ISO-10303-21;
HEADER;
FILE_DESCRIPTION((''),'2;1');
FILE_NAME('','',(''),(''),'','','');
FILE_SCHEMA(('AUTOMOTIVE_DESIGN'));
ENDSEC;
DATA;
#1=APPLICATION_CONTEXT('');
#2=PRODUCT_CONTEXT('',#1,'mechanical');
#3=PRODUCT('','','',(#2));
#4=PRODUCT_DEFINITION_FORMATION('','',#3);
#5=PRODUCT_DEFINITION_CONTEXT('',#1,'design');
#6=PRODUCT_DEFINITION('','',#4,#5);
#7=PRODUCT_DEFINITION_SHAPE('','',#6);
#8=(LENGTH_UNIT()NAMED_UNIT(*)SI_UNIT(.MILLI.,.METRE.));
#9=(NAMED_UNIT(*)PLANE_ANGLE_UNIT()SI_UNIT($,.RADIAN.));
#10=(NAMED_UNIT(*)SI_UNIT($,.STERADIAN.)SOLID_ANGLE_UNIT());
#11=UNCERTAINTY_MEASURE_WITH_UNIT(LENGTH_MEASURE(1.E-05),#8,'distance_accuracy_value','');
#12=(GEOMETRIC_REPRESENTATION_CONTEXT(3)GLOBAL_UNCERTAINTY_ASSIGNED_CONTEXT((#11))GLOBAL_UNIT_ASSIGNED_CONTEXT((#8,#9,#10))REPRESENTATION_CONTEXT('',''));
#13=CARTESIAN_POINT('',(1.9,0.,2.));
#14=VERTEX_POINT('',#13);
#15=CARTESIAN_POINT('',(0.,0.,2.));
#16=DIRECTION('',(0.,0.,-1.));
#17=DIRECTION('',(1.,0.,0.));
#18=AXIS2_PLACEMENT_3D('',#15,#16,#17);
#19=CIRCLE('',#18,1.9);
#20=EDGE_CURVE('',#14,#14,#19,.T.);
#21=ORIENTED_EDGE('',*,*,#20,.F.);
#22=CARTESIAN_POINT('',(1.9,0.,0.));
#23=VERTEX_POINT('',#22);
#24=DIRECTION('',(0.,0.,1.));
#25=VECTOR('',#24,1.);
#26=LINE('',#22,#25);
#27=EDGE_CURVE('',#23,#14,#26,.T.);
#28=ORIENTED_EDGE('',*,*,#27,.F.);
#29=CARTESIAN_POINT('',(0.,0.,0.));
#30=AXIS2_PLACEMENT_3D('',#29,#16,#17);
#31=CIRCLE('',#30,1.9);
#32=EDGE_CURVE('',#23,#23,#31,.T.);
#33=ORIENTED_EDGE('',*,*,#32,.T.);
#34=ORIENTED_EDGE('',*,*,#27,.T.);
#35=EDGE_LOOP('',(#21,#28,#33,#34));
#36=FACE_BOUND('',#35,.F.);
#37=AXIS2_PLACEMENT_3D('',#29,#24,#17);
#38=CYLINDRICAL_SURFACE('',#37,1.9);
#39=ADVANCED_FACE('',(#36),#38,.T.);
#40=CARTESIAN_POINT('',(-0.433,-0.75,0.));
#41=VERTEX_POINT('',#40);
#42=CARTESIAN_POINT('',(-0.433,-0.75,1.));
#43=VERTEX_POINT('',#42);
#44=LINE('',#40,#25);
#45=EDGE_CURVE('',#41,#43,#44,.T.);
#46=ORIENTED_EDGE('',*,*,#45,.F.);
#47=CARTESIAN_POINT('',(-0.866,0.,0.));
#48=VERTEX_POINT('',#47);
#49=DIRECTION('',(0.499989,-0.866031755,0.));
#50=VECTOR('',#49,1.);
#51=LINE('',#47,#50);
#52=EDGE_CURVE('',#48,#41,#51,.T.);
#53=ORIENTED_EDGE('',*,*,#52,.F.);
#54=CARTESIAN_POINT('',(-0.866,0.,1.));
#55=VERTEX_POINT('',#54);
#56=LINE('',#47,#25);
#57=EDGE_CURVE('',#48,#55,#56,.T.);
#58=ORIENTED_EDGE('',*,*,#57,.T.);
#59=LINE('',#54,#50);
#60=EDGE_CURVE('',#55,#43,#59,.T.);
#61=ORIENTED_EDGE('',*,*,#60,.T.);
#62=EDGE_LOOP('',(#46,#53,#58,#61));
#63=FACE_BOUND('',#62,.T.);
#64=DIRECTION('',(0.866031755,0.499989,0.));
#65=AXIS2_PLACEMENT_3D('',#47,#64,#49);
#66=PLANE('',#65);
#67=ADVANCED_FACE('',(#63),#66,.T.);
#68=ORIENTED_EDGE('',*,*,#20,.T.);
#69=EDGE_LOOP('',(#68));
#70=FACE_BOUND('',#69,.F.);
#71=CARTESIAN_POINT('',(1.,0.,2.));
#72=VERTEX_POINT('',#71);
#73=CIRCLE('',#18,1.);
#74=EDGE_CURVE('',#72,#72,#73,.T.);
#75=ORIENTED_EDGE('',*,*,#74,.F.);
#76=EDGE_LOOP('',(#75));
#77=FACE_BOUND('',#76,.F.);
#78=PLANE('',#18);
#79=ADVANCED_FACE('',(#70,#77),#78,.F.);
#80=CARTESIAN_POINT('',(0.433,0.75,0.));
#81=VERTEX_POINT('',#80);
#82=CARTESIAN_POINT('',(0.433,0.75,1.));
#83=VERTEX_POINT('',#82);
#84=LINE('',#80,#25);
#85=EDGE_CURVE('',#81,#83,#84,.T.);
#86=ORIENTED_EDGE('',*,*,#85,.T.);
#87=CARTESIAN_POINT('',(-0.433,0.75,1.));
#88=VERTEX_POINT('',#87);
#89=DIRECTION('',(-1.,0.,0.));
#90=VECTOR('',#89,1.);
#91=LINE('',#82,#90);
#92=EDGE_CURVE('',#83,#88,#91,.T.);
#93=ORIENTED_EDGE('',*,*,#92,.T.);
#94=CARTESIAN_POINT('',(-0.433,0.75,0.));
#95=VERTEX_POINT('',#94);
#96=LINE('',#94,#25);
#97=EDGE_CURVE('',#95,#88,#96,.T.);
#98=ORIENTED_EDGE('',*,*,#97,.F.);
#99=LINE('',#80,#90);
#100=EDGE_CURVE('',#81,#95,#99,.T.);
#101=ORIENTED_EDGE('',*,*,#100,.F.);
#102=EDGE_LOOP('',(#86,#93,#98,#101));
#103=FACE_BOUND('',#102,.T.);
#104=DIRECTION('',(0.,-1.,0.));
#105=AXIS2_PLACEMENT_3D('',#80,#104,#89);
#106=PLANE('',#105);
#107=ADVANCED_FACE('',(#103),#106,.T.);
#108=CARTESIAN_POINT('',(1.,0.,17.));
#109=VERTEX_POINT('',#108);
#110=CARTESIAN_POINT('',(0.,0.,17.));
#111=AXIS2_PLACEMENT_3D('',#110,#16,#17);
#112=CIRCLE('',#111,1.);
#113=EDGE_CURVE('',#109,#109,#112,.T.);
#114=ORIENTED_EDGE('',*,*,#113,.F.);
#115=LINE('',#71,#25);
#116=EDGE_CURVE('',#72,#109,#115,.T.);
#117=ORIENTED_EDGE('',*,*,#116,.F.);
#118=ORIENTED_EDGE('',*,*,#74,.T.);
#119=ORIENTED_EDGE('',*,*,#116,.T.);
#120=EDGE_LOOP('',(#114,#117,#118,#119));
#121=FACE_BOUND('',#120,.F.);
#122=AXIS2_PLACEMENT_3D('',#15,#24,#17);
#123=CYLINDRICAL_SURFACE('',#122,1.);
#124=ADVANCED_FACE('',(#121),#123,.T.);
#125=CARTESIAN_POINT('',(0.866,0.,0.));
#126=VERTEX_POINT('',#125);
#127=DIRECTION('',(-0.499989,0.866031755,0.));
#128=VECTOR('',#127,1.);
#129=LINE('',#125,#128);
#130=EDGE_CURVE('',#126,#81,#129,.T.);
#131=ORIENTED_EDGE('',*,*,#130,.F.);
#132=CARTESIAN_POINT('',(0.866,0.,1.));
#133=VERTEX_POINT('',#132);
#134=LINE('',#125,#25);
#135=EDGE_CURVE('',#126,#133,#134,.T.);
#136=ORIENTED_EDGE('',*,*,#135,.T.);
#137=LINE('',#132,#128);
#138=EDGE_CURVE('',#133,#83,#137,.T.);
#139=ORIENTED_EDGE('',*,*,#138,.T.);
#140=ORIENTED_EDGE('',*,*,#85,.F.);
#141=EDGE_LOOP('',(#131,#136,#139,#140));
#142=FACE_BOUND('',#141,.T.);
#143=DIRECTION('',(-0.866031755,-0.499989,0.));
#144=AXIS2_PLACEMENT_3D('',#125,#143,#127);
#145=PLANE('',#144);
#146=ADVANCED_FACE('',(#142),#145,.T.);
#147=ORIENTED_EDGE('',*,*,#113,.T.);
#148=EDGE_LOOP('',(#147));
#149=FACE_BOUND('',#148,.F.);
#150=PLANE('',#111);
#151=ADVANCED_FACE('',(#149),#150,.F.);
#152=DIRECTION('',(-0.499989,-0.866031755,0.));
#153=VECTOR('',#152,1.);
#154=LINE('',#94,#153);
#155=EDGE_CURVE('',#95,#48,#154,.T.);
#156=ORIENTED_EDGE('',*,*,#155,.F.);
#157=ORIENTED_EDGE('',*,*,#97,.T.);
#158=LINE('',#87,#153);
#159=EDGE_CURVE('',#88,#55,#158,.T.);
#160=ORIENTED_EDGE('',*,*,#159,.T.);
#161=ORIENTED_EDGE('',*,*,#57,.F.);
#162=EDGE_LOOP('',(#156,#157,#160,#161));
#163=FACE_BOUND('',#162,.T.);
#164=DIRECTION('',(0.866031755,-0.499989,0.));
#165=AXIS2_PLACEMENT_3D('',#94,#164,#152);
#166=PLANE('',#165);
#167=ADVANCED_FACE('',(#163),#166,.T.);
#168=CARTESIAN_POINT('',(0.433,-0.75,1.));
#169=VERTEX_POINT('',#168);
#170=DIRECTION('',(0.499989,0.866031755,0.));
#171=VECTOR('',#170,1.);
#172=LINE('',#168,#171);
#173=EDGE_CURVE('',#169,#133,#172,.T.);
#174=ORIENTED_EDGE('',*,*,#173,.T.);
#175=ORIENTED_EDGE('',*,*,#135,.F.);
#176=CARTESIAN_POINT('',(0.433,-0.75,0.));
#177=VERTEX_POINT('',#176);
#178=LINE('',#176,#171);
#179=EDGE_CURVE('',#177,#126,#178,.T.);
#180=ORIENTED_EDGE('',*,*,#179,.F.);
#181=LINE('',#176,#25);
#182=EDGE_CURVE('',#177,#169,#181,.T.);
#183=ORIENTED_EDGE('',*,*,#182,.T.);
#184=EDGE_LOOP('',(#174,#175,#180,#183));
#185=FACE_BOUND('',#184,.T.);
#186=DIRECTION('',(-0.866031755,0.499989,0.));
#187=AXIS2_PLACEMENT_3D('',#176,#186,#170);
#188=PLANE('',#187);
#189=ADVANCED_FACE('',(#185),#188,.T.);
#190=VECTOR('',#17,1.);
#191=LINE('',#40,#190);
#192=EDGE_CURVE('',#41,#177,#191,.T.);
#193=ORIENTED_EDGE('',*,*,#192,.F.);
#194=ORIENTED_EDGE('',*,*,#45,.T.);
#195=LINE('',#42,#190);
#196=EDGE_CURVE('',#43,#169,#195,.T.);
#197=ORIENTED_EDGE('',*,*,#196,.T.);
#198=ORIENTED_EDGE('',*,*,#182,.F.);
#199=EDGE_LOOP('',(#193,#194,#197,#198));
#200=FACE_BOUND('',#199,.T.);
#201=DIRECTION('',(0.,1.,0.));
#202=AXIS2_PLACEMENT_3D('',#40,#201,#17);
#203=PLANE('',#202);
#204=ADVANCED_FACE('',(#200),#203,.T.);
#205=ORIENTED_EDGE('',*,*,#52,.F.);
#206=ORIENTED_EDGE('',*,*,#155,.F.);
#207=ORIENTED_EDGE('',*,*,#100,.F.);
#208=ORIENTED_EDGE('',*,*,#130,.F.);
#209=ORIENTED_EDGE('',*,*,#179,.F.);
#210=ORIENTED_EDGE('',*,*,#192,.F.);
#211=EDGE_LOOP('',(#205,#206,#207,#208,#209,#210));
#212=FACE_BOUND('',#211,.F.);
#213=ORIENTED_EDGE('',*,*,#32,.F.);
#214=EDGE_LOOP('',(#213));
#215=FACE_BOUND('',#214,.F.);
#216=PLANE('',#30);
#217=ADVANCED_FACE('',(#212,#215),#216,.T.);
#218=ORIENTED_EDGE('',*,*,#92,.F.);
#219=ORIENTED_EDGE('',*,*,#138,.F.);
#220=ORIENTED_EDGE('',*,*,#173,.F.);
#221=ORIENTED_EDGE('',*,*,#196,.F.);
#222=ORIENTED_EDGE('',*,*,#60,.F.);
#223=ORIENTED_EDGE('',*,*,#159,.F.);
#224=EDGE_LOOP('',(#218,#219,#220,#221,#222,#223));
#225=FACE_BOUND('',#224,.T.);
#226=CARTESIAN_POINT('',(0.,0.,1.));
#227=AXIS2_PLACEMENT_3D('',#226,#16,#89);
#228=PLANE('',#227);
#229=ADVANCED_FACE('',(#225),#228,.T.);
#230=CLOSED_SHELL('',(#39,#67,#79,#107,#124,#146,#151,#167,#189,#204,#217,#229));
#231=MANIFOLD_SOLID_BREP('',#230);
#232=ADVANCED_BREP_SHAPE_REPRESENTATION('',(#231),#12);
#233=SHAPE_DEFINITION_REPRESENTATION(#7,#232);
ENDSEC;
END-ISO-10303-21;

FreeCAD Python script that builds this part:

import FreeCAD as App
import Part
import Sketcher

V = App.Vector
Q = App.Units.Quantity

doc = App.newDocument("Part")
body = doc.addObject("PartDesign::Body", "Body")

# Sketch on XZ plane
sketch1 = doc.addObject("Sketcher::SketchObject", "Sketch")
body.addObject(sketch1)
sketch1.AttachmentSupport = (doc.XZ_Plane, [""])
sketch1.MapMode = "FlatFace"
sketch1.addGeometry([
    Part.LineSegment(V(1.9, 0, 0), V(0, 0, 0)),  # 0
    Part.LineSegment(V(0, 0, 0), V(0, 17, 0)),  # 1
    Part.LineSegment(V(0, 17, 0), V(1, 17, 0)),  # 2
    Part.LineSegment(V(1, 17, 0), V(1, 2, 0)),  # 3
    Part.LineSegment(V(1, 2, 0), V(1.9, 2, 0)),  # 4
    Part.LineSegment(V(1.9, 2, 0), V(1.9, 0, 0)),  # 5
], False)
sketch1.addConstraint([
    Sketcher.Constraint("Coincident", 0, 2, 1, 1),
    Sketcher.Constraint("Coincident", 1, 2, 2, 1),
    Sketcher.Constraint("Coincident", 2, 2, 3, 1),
    Sketcher.Constraint("Coincident", 3, 2, 4, 1),
    Sketcher.Constraint("Coincident", 4, 2, 5, 1),
    Sketcher.Constraint("Coincident", 5, 2, 0, 1),
    Sketcher.Constraint("Horizontal", 0),
    Sketcher.Constraint("Vertical", 1),
    Sketcher.Constraint("Horizontal", 2),
    Sketcher.Constraint("Vertical", 3),
    Sketcher.Constraint("Horizontal", 4),
    Sketcher.Constraint("Vertical", 5),
    Sketcher.Constraint("Coincident", 0, 2, -1, 1),
    Sketcher.Constraint("DistanceY", 3, 2, 3, 1, 15.0),
    Sketcher.Constraint("DistanceY", 5, 2, 5, 1, 2.0),
    Sketcher.Constraint("DistanceX", 2, 1, 2, 2, 1.0),
    Sketcher.Constraint("DistanceX", 0, 2, 0, 1, 1.9),
])
revolution = doc.addObject("PartDesign::Revolution", "Revolution")
body.addObject(revolution)
revolution.Profile = sketch1
revolution.ReferenceAxis = (sketch1, ["V_Axis"])
revolution.Angle = 360

# Sketch on XY plane
sketch2 = doc.addObject("Sketcher::SketchObject", "Sketch001")
body.addObject(sketch2)
sketch2.AttachmentSupport = (doc.XY_Plane, [""])
sketch2.MapMode = "FlatFace"
sketch2.addGeometry([
    Part.LineSegment(V(-0.866, 0, 0), V(-0.433, 0.75, 0)),  # 0
    Part.LineSegment(V(-0.433, 0.75, 0), V(0.433, 0.75, 0)),  # 1
    Part.LineSegment(V(0.433, 0.75, 0), V(0.866, 0, 0)),  # 2
    Part.LineSegment(V(0.866, 0, 0), V(0.433, -0.75, 0)),  # 3
    Part.LineSegment(V(0.433, -0.75, 0), V(-0.433, -0.75, 0)),  # 4
    Part.LineSegment(V(-0.433, -0.75, 0), V(-0.866, 0, 0)),  # 5
], False)
sketch2.addConstraint([
    Sketcher.Constraint("Coincident", 0, 2, 1, 1),
    Sketcher.Constraint("Coincident", 1, 2, 2, 1),
    Sketcher.Constraint("Coincident", 2, 2, 3, 1),
    Sketcher.Constraint("Coincident", 3, 2, 4, 1),
    Sketcher.Constraint("Coincident", 4, 2, 5, 1),
    Sketcher.Constraint("Coincident", 5, 2, 0, 1),
    Sketcher.Constraint("Horizontal", 1),
    Sketcher.Constraint("Horizontal", 4),
    Sketcher.Constraint("Symmetric", 0, 2, 3, 2, -1, 1),
    Sketcher.Constraint("Symmetric", 2, 2, 5, 2, -1, 1),
    Sketcher.Constraint("PointOnObject", 2, 2, -1),
    Sketcher.Constraint("Parallel", 2, 5),
    Sketcher.Constraint("Vertical", 1, 2, 3, 2),
    Sketcher.Constraint("DistanceY", 3, 2, 1, 2, 1.5),
    Sketcher.Constraint("Angle", 0, Q("60.0007 deg")),
    Sketcher.Constraint("DistanceX", 1, 1, 1, 2, 0.866),
])
pocket1 = doc.addObject("PartDesign::Pocket", "Pocket")
body.addObject(pocket1)
pocket1.Profile = sketch2
pocket1.Length = 1
pocket1.Reversed = True

doc.recompute()
